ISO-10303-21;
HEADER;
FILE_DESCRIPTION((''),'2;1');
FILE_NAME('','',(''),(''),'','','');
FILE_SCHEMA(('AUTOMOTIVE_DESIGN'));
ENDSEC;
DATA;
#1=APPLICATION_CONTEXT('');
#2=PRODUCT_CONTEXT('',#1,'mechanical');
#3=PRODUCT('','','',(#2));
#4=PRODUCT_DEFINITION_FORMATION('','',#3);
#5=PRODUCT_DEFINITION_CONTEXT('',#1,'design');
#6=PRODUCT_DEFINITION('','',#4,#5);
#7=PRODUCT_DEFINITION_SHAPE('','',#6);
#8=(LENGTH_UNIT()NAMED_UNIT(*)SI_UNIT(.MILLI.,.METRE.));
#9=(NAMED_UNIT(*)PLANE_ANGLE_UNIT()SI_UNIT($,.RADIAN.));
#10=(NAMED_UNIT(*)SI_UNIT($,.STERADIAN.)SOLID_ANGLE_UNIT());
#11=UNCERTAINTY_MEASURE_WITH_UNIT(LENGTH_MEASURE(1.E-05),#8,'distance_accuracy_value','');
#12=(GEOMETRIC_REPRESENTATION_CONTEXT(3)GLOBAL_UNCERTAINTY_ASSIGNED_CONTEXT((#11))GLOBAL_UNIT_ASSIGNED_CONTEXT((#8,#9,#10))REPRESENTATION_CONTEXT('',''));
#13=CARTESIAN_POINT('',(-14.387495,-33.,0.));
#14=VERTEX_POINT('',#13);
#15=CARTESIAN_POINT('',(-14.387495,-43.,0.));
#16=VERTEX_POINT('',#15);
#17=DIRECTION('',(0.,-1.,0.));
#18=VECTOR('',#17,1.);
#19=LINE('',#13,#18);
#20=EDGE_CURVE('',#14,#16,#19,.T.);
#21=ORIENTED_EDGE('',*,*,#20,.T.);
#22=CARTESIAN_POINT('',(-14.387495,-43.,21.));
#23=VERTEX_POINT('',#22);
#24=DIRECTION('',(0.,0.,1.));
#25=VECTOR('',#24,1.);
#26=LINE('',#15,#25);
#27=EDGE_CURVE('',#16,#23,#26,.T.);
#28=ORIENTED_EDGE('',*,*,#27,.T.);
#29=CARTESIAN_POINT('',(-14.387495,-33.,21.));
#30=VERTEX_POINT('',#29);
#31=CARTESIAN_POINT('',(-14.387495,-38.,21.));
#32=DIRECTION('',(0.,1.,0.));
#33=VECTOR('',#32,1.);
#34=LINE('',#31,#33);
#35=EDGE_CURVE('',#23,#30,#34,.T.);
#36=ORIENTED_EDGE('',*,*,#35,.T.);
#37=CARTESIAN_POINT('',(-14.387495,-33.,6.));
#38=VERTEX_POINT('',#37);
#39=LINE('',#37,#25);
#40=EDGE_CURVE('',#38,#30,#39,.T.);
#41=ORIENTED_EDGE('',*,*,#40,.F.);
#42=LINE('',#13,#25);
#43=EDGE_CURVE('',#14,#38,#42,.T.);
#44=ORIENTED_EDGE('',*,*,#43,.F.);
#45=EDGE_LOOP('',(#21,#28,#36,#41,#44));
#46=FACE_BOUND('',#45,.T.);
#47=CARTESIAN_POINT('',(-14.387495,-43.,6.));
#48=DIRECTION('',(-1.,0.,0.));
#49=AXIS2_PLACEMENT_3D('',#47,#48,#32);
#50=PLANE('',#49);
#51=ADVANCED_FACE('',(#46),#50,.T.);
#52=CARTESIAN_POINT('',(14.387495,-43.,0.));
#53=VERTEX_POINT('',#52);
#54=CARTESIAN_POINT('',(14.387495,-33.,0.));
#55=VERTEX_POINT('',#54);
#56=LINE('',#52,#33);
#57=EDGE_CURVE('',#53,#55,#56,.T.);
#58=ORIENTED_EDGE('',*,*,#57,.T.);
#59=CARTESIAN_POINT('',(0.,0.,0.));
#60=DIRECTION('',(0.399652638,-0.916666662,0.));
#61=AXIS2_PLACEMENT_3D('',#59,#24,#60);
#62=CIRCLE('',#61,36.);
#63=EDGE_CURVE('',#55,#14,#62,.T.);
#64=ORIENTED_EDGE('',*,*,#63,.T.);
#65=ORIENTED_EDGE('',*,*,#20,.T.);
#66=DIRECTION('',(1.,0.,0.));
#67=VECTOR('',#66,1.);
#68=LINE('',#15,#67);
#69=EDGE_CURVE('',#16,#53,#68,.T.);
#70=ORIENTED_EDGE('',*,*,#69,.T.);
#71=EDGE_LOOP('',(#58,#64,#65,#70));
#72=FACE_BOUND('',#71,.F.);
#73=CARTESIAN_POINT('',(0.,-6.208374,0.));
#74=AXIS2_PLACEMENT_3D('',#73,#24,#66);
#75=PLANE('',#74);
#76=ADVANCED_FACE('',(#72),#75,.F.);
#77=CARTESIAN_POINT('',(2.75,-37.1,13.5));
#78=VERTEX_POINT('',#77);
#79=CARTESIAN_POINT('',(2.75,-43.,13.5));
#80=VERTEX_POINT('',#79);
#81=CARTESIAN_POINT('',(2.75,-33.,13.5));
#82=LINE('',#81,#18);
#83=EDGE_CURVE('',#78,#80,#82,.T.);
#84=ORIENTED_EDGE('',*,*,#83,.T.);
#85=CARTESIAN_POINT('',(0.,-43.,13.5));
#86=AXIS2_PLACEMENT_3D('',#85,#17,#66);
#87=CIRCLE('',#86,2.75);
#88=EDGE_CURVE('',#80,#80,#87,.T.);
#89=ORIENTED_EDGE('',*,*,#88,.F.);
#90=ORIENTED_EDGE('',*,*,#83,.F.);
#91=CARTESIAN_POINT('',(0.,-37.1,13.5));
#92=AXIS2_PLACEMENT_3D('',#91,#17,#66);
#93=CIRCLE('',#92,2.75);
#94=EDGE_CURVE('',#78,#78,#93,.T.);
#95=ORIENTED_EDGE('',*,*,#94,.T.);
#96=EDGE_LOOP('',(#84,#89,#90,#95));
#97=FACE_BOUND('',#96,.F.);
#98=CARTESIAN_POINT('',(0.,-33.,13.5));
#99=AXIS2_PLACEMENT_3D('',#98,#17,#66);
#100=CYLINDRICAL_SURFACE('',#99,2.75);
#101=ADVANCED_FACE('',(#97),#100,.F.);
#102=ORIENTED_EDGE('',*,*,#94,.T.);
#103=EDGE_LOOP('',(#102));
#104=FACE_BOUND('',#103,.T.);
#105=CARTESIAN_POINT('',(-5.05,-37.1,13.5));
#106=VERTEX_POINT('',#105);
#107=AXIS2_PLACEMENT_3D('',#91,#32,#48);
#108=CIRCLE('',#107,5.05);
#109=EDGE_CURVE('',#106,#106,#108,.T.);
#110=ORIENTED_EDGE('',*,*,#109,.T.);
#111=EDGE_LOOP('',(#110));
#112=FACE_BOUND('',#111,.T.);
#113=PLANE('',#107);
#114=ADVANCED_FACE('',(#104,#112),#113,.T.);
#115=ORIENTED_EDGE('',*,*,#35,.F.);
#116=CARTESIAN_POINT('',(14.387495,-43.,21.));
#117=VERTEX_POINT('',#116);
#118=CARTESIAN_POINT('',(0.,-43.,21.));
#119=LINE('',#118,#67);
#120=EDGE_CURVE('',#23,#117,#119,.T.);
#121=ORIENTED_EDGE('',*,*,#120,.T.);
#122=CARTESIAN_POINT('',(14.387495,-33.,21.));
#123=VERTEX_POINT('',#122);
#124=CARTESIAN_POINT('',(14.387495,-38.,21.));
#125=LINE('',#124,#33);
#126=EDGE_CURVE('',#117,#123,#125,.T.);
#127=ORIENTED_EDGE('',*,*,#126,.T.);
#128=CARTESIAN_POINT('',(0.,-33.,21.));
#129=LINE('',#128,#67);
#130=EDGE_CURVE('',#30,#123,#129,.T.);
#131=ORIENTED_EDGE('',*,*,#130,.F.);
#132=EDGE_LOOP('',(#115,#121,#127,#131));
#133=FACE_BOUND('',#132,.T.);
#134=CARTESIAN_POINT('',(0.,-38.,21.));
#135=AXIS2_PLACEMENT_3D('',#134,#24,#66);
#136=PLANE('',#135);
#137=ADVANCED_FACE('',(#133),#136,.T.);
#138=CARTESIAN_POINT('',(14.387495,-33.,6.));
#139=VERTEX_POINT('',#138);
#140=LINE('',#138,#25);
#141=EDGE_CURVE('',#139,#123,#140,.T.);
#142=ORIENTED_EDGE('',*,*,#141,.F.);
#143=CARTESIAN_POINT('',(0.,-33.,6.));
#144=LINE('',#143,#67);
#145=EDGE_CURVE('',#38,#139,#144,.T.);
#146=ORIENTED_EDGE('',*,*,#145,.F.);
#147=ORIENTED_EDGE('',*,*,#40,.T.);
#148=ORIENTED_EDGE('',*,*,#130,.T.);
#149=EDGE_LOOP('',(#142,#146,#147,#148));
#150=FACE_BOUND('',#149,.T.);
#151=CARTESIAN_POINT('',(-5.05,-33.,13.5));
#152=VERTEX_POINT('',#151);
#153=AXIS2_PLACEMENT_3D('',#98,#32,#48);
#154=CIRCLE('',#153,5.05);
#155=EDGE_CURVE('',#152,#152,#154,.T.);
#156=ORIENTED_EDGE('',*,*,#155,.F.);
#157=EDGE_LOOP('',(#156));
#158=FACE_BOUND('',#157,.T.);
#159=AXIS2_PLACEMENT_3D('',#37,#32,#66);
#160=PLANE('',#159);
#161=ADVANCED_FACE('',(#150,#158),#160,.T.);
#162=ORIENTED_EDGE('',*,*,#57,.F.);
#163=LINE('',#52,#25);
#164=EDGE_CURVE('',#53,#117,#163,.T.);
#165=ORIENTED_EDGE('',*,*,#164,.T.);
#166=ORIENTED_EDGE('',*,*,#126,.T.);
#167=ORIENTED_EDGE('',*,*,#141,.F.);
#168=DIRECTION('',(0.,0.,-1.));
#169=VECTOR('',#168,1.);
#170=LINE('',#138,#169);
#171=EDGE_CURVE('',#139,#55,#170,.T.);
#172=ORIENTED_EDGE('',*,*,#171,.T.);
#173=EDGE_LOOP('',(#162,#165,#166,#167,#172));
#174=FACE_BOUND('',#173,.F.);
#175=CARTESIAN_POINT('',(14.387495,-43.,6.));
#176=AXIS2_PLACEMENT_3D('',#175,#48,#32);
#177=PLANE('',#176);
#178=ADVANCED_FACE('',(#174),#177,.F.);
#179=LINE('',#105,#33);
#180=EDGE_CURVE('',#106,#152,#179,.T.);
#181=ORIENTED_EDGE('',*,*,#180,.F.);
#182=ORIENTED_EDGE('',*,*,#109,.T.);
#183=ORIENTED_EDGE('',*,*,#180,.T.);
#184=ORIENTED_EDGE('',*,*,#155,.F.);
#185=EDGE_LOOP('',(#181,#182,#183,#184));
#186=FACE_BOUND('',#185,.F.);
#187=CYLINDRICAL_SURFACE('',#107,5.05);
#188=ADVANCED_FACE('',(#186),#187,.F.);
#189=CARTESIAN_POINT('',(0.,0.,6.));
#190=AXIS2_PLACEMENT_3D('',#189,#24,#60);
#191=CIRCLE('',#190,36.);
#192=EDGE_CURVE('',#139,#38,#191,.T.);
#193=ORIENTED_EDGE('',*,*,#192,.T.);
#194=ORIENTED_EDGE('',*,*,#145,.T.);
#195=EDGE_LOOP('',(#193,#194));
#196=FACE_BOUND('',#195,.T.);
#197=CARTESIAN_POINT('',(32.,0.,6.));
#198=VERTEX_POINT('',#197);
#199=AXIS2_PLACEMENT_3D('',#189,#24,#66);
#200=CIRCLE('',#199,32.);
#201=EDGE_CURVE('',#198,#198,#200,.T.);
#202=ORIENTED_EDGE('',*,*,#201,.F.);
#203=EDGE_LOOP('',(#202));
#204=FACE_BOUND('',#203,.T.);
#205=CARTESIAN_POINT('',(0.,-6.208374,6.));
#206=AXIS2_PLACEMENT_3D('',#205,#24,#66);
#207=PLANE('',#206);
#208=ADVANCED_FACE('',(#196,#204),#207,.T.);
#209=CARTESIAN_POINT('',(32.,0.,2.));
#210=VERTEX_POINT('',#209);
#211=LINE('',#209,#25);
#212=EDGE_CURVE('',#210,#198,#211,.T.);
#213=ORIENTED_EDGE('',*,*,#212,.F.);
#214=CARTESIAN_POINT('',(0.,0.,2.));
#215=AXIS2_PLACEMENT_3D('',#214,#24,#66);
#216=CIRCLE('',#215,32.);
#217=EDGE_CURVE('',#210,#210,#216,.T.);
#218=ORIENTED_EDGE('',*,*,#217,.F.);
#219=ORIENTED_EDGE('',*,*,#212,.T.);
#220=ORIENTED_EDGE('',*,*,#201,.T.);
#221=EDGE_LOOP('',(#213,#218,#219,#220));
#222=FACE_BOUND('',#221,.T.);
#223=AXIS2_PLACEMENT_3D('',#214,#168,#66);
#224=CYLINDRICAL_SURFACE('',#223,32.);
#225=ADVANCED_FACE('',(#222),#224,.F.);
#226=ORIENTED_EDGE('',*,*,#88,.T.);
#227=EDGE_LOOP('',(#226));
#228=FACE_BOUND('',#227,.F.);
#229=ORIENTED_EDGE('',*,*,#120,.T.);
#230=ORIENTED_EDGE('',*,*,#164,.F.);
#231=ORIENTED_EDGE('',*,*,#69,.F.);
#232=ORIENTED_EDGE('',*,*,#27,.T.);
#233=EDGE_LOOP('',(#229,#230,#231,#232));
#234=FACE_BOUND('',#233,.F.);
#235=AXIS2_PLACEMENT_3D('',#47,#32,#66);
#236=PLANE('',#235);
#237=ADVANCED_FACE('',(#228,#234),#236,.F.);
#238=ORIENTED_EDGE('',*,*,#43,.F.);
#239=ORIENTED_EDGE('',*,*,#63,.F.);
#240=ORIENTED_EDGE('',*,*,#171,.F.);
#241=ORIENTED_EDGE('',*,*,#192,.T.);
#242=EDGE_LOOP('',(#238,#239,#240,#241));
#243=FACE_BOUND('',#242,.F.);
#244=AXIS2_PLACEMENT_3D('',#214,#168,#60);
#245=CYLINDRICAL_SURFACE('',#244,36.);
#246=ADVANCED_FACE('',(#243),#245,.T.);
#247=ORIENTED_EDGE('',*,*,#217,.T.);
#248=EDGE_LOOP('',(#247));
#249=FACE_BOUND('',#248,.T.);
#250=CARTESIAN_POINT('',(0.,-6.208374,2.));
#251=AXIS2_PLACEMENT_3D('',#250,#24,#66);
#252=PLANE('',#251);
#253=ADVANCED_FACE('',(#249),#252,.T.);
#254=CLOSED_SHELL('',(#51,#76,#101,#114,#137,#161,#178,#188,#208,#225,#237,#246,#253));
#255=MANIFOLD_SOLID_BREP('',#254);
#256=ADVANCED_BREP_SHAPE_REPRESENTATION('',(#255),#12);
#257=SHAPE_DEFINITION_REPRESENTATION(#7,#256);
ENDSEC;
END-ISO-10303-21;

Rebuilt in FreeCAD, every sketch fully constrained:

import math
import FreeCAD as App
import Part
import Sketcher
from FreeCAD import Vector


def add_polygon(sketch, points):
    """Adds a closed chain of lines whose ends are joined by coincident constraints."""
    first, n = sketch.GeometryCount, len(points)
    for a, b in zip(points, points[1:] + points[:1]):
        sketch.addGeometry(Part.LineSegment(App.Vector(*a, 0), App.Vector(*b, 0)), False)
    for i in range(n):
        sketch.addConstraint(Sketcher.Constraint("Coincident", first + i, 2, first + (i + 1) % n, 1))

doc = App.newDocument("Part")
params = doc.addObject("Spreadsheet::Sheet", "Params")
for row, (alias, value) in enumerate([
    ("sketch1_radius", "36 mm"),
    ("sketch1_height", "10 mm"),
    ("pad1_length", "2 mm"),
    ("sketch2_diameter", "64 mm"),
    ("sketch2_radius", "36 mm"),
    ("sketch2_height", "10 mm"),
    ("pad2_length", "4 mm"),
    ("sketch3_height", "10 mm"),
    ("pad3_length", "15 mm"),
    ("sketch4_diameter", "5.5 mm"),
    ("hole_diameter", "5.5 mm"),
    ("hole_depth", "25 mm"),
    ("hole_cbore_diameter", "10.1 mm"),
    ("hole_cbore_depth", "4.1 mm"),
], start=1):
    params.set(f"A{row}", alias)
    params.set(f"B{row}", "=" + value)
    params.setAlias(f"B{row}", alias)

body = doc.addObject("PartDesign::Body", "Body")

# Sketch on XY plane
sketch1 = doc.addObject("Sketcher::SketchObject", "Sketch")
body.addObject(sketch1)
sketch1.AttachmentSupport = (doc.XY_Plane, [""])
sketch1.MapMode = "FlatFace"
sketch1.addGeometry(Part.ArcOfCircle(Part.Circle(Vector(0, 0, 0), Vector(0, 0, 1), 36), math.radians(-66), math.radians(246)), False)
sketch1.addGeometry(Part.LineSegment(Vector(-14, -33, 0), Vector(-14, -43, 0)), False)
sketch1.addGeometry(Part.LineSegment(Vector(-14, -43, 0), Vector(14, -43, 0)), False)
sketch1.addGeometry(Part.LineSegment(Vector(14, -43, 0), Vector(14, -33, 0)), False)
sketch1.addConstraint(Sketcher.Constraint("Coincident", 0, 2, 1, 1))
sketch1.addConstraint(Sketcher.Constraint("Coincident", 1, 2, 2, 1))
sketch1.addConstraint(Sketcher.Constraint("Coincident", 2, 2, 3, 1))
sketch1.addConstraint(Sketcher.Constraint("Coincident", 3, 2, 0, 1))
sketch1.addConstraint(Sketcher.Constraint("Vertical", 1))
sketch1.addConstraint(Sketcher.Constraint("Horizontal", 2))
sketch1.addConstraint(Sketcher.Constraint("Vertical", 3))
sketch1.addConstraint(Sketcher.Constraint("Coincident", 0, 3, -1, 1))
sketch1.addConstraint(Sketcher.Constraint("Horizontal", 0, 2, 3, 2))
sketch1.addConstraint(Sketcher.Constraint("Radius", 0, 36.0))
sketch1.addConstraint(Sketcher.Constraint("DistanceY", 1, 2, 1, 1, 10.0))
sketch1.addConstraint(Sketcher.Constraint("DistanceY", 0, 2, -1, 1, 33.0))
sketch1.setExpression("Constraints[9]", "Params.sketch1_radius")
sketch1.setExpression("Constraints[10]", "Params.sketch1_height")
pad1 = doc.addObject("PartDesign::Pad", "Pad")
body.addObject(pad1)
pad1.Profile = sketch1
pad1.setExpression("Length", "Params.pad1_length")

# Sketch on XY plane
sketch2 = doc.addObject("Sketcher::SketchObject", "Sketch001")
body.addObject(sketch2)
sketch2.AttachmentSupport = (doc.XY_Plane, [""])
sketch2.MapMode = "FlatFace"
sketch2.AttachmentOffset = App.Placement(Vector(0, 0, 2), App.Rotation())
sketch2.addGeometry(Part.ArcOfCircle(Part.Circle(Vector(0, 0, 0), Vector(0, 0, 1), 36), math.radians(-66), math.radians(246)), False)
sketch2.addGeometry(Part.LineSegment(Vector(-14, -33, 0), Vector(-14, -43, 0)), False)
sketch2.addGeometry(Part.LineSegment(Vector(-14, -43, 0), Vector(14, -43, 0)), False)
sketch2.addGeometry(Part.LineSegment(Vector(14, -43, 0), Vector(14, -33, 0)), False)
sketch2.addGeometry(Part.Circle(Vector(0, 0, 0), Vector(0, 0, 1), 32), False)
sketch2.addConstraint(Sketcher.Constraint("Coincident", 0, 2, 1, 1))
sketch2.addConstraint(Sketcher.Constraint("Coincident", 1, 2, 2, 1))
sketch2.addConstraint(Sketcher.Constraint("Coincident", 2, 2, 3, 1))
sketch2.addConstraint(Sketcher.Constraint("Coincident", 3, 2, 0, 1))
sketch2.addConstraint(Sketcher.Constraint("Vertical", 1))
sketch2.addConstraint(Sketcher.Constraint("Horizontal", 2))
sketch2.addConstraint(Sketcher.Constraint("Vertical", 3))
sketch2.addConstraint(Sketcher.Constraint("Coincident", 0, 3, -1, 1))
sketch2.addConstraint(Sketcher.Constraint("Coincident", 4, 3, -1, 1))
sketch2.addConstraint(Sketcher.Constraint("Horizontal", 0, 2, 3, 2))
sketch2.addConstraint(Sketcher.Constraint("Diameter", 4, 64.0))
sketch2.addConstraint(Sketcher.Constraint("Radius", 0, 36.0))
sketch2.addConstraint(Sketcher.Constraint("DistanceY", 1, 2, 1, 1, 10.0))
sketch2.addConstraint(Sketcher.Constraint("DistanceY", 0, 2, -1, 1, 33.0))
sketch2.setExpression("Constraints[10]", "Params.sketch2_diameter")
sketch2.setExpression("Constraints[11]", "Params.sketch2_radius")
sketch2.setExpression("Constraints[12]", "Params.sketch2_height")
pad2 = doc.addObject("PartDesign::Pad", "Pad001")
body.addObject(pad2)
pad2.Profile = sketch2
pad2.setExpression("Length", "Params.pad2_length")

# Sketch on XY plane
sketch3 = doc.addObject("Sketcher::SketchObject", "Sketch002")
body.addObject(sketch3)
sketch3.AttachmentSupport = (doc.XY_Plane, [""])
sketch3.MapMode = "FlatFace"
sketch3.AttachmentOffset = App.Placement(Vector(0, 0, 6), App.Rotation())
add_polygon(sketch3, [(-14, -33), (-14, -43), (14, -43), (14, -33)])  # lines 0-3
sketch3.addConstraint(Sketcher.Constraint("Vertical", 0))
sketch3.addConstraint(Sketcher.Constraint("Horizontal", 1))
sketch3.addConstraint(Sketcher.Constraint("Vertical", 2))
sketch3.addConstraint(Sketcher.Constraint("Horizontal", 3))
sketch3.addConstraint(Sketcher.Constraint("DistanceY", 0, 2, 0, 1, 10.0))
sketch3.addConstraint(Sketcher.Constraint("DistanceY", 0, 2, -1, 1, 43.0))
sketch3.addConstraint(Sketcher.Constraint("DistanceX", 1, 1, 1, 2, 28.77499))
sketch3.addConstraint(Sketcher.Constraint("DistanceX", 0, 2, -1, 1, 14.387495))
sketch3.setExpression("Constraints[8]", "Params.sketch3_height")
pad3 = doc.addObject("PartDesign::Pad", "Pad002")
body.addObject(pad3)
pad3.Profile = sketch3
pad3.setExpression("Length", "Params.pad3_length")

# Sketch on XZ plane
sketch4 = doc.addObject("Sketcher::SketchObject", "Sketch003")
body.addObject(sketch4)
sketch4.AttachmentSupport = (doc.XZ_Plane, [""])
sketch4.MapMode = "FlatFace"
sketch4.AttachmentOffset = App.Placement(Vector(0, 0, 33), App.Rotation())
sketch4.addGeometry(Part.Circle(Vector(0, 13.5, 0), Vector(0, 0, 1), 2.8), False)
sketch4.addConstraint(Sketcher.Constraint("PointOnObject", 0, 3, -2))
sketch4.addConstraint(Sketcher.Constraint("Diameter", 0, 5.5))
sketch4.addConstraint(Sketcher.Constraint("DistanceY", -1, 1, 0, 3, 13.5))
sketch4.setExpression("Constraints[1]", "Params.sketch4_diameter")
doc.recompute()
hole = doc.addObject("PartDesign::Hole", "Hole")
body.addObject(hole)
hole.Profile = sketch4
hole.ThreadType = "None"
hole.setExpression("Diameter", "Params.hole_diameter")
hole.DepthType = "Dimension"
hole.setExpression("Depth", "Params.hole_depth")
hole.DrillPoint = "Flat"
hole.HoleCutType = "Counterbore"
hole.setExpression("HoleCutDiameter", "Params.hole_cbore_diameter")
hole.setExpression("HoleCutDepth", "Params.hole_cbore_depth")
hole.Reversed = True

doc.recompute()
